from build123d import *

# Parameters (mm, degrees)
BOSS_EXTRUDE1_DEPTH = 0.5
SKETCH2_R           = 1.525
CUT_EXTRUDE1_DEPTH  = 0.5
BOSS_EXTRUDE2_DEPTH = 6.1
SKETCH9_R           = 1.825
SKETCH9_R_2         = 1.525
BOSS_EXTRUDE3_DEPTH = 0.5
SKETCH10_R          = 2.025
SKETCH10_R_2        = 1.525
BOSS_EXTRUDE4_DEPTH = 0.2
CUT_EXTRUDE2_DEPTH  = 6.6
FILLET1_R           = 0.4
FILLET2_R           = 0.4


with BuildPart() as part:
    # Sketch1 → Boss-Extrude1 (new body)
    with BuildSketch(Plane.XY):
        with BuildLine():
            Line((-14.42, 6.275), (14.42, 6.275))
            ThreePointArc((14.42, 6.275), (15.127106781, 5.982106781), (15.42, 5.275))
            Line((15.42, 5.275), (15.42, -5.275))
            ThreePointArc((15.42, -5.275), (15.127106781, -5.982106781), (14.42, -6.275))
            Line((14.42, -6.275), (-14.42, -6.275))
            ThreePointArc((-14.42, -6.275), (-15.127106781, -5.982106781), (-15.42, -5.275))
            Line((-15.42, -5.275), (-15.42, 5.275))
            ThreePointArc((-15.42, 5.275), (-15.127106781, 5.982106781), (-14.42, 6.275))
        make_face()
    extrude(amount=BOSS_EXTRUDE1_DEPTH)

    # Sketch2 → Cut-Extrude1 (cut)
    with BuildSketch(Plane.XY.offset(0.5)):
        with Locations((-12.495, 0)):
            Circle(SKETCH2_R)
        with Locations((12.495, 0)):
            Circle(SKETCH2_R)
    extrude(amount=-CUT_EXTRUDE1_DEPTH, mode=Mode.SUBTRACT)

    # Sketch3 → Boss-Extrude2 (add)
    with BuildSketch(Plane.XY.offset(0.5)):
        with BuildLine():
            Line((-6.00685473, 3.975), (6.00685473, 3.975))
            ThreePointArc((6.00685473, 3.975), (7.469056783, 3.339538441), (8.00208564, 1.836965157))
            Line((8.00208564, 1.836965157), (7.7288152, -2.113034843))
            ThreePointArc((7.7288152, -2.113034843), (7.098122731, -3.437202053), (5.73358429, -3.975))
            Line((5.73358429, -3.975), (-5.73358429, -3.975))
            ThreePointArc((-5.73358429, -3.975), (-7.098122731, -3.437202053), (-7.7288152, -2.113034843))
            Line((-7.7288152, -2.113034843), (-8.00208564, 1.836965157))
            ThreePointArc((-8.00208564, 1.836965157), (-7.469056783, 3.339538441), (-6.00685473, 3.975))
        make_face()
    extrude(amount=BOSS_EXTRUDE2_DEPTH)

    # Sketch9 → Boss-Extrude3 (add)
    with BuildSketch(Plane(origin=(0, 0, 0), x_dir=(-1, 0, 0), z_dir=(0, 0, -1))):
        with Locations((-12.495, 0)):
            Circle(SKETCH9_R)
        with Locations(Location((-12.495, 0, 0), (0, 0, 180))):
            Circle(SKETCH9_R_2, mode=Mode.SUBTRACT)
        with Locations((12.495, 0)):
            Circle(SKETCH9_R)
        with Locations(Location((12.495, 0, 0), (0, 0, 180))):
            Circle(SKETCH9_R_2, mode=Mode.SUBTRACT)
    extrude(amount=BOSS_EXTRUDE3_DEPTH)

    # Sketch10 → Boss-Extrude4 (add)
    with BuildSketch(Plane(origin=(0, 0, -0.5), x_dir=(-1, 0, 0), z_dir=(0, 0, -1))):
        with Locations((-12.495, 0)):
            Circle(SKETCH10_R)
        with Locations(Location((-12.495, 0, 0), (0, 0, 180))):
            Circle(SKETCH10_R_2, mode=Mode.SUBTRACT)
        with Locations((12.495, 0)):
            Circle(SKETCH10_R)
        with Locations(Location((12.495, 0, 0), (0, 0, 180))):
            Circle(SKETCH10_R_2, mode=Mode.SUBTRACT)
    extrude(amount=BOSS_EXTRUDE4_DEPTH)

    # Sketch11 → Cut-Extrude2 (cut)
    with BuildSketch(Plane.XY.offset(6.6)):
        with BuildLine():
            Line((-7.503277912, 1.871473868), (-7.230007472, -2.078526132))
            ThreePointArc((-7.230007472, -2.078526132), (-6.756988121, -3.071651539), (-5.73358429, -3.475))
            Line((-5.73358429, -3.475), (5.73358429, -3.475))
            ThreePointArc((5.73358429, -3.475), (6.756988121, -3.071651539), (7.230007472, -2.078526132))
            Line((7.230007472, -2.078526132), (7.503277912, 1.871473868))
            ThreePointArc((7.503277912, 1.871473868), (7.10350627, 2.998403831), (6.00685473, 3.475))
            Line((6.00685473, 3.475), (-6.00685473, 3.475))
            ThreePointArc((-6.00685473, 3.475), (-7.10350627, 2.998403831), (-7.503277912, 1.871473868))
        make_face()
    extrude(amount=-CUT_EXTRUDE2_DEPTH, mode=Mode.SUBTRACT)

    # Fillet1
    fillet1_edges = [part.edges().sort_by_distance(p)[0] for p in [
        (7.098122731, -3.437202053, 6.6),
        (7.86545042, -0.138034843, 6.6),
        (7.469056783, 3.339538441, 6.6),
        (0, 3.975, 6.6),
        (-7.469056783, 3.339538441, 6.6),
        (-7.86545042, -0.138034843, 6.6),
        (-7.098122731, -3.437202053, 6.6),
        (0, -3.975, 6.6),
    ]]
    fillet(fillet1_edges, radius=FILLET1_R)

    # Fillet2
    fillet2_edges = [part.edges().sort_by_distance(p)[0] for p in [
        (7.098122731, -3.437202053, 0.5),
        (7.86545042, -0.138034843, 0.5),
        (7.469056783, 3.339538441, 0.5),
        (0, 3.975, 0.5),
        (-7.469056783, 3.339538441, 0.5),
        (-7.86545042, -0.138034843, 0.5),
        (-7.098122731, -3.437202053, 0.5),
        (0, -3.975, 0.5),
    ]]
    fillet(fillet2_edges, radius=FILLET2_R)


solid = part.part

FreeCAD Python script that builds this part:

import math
import FreeCAD as App
import Part
import Sketcher

V = App.Vector


def edges_at(feature, points):
    """Names of the edges that pass closest to the given points."""
    edges = feature.Shape.Edges
    near = lambda p: min(range(len(edges)), key=lambda i: edges[i].distToShape(Part.Vertex(*p))[0])
    return sorted({f"Edge{near(p) + 1}" for p in points})

doc = App.newDocument("Part")
params = doc.addObject("Spreadsheet::Sheet", "Params")
for row, (alias, value) in enumerate([
    ("sketch1_radius", "1 mm"),
    ("sketch1_width", "28.84 mm"),
    ("sketch1_height", "10.55 mm"),
    ("pad1_length", "0.5 mm"),
    ("sketch2_diameter", "3.05 mm"),
    ("pocket1_length", "0.5 mm"),
    ("sketch3_radius", "2 mm"),
    ("pad2_length", "6.1 mm"),
    ("sketch4_diameter", "3.65 mm"),
    ("sketch4_diameter2", "3.05 mm"),
    ("pad3_length", "0.5 mm"),
    ("sketch5_diameter", "4.05 mm"),
    ("sketch5_diameter2", "3.05 mm"),
    ("pad4_length", "0.2 mm"),
    ("sketch6_radius", "1.5 mm"),
    ("pocket2_length", "6.6 mm"),
    ("fillet_radius", "0.4 mm"),
    ("fillet2_radius", "0.4 mm"),
], start=1):
    params.set(f"A{row}", alias)
    params.set(f"B{row}", "=" + value)
    params.setAlias(f"B{row}", alias)

body = doc.addObject("PartDesign::Body", "Body")

sketch1 = body.newObject("Sketcher::SketchObject", "Sketch")
sketch1.AttachmentSupport = (doc.getObject("XY_Plane"), [""])
sketch1.MapMode = "FlatFace"
sketch1.addGeometry([
    Part.LineSegment(V(14.4, 6.3, 0), V(-14.4, 6.3, 0)),
    Part.ArcOfCircle(Part.Circle(V(-14.4, 5.3, 0), V(0, 0, 1), 1), math.radians(90), math.radians(180)),
    Part.LineSegment(V(-15.4, 5.3, 0), V(-15.4, -5.3, 0)),
    Part.ArcOfCircle(Part.Circle(V(-14.4, -5.3, 0), V(0, 0, 1), 1), math.radians(-180), math.radians(-90)),
    Part.LineSegment(V(-14.4, -6.3, 0), V(14.4, -6.3, 0)),
    Part.ArcOfCircle(Part.Circle(V(14.4, -5.3, 0), V(0, 0, 1), 1), math.radians(-90), math.radians(0)),
    Part.LineSegment(V(15.4, -5.3, 0), V(15.4, 5.3, 0)),
    Part.ArcOfCircle(Part.Circle(V(14.4, 5.3, 0), V(0, 0, 1), 1), math.radians(0), math.radians(90)),
], False)
sketch1.addConstraint([
    Sketcher.Constraint("Tangent", 0, 2, 1, 1),
    Sketcher.Constraint("Tangent", 1, 2, 2, 1),
    Sketcher.Constraint("Tangent", 2, 2, 3, 1),
    Sketcher.Constraint("Tangent", 3, 2, 4, 1),
    Sketcher.Constraint("Tangent", 4, 2, 5, 1),
    Sketcher.Constraint("Tangent", 5, 2, 6, 1),
    Sketcher.Constraint("Tangent", 6, 2, 7, 1),
    Sketcher.Constraint("Tangent", 7, 2, 0, 1),
    Sketcher.Constraint("Horizontal", 0),
    Sketcher.Constraint("Vertical", 2),
    Sketcher.Constraint("Horizontal", 4),
    Sketcher.Constraint("Vertical", 6),
    Sketcher.Constraint("Equal", 1, 3),
    Sketcher.Constraint("Equal", 3, 5),
    Sketcher.Constraint("Equal", 5, 7),
    Sketcher.Constraint("Symmetric", 1, 3, 5, 3, -1, 1),
    Sketcher.Constraint("Radius", 1, 1.0),
    Sketcher.Constraint("DistanceX", 0, 2, 0, 1, 28.84),
    Sketcher.Constraint("DistanceY", 2, 2, 2, 1, 10.55),
])
sketch1.setExpression("Constraints[16]", "Params.sketch1_radius")
sketch1.setExpression("Constraints[17]", "Params.sketch1_width")
sketch1.setExpression("Constraints[18]", "Params.sketch1_height")
pad1 = body.newObject("PartDesign::Pad", "Pad")
pad1.Profile = sketch1
pad1.setExpression("Length", "Params.pad1_length")

sketch2 = body.newObject("Sketcher::SketchObject", "Sketch001")
sketch2.AttachmentSupport = (doc.getObject("XY_Plane"), [""])
sketch2.MapMode = "FlatFace"
sketch2.AttachmentOffset = App.Placement(V(0, 0, 0.5), App.Rotation())
sketch2.addGeometry([
    Part.Circle(V(-12.5, 0, 0), V(0, 0, 1), 1.5),
    Part.Circle(V(12.5, 0, 0), V(0, 0, 1), 1.5),
], False)
sketch2.addConstraint([
    Sketcher.Constraint("Equal", 0, 1),
    Sketcher.Constraint("Symmetric", 0, 3, 1, 3, -1, 1),
    Sketcher.Constraint("PointOnObject", 0, 3, -1),
    Sketcher.Constraint("Diameter", 0, 3.05),
    Sketcher.Constraint("DistanceX", 0, 3, 1, 3, 24.99),
])
sketch2.setExpression("Constraints[3]", "Params.sketch2_diameter")
pocket1 = body.newObject("PartDesign::Pocket", "Pocket")
pocket1.Profile = sketch2
pocket1.setExpression("Length", "Params.pocket1_length")

sketch3 = body.newObject("Sketcher::SketchObject", "Sketch002")
sketch3.AttachmentSupport = (doc.getObject("XY_Plane"), [""])
sketch3.MapMode = "FlatFace"
sketch3.AttachmentOffset = App.Placement(V(0, 0, 0.5), App.Rotation())
sketch3.addGeometry([
    Part.LineSegment(V(6, 4, 0), V(-6, 4, 0)),
    Part.ArcOfCircle(Part.Circle(V(-6, 2, 0), V(0, 0, 1), 2), math.radians(90), math.radians(184)),
    Part.LineSegment(V(-8, 1.8, 0), V(-7.7, -2.1, 0)),
    Part.ArcOfCircle(Part.Circle(V(-5.7, -2, 0), V(0, 0, 1), 2), math.radians(-176), math.radians(-90)),
    Part.LineSegment(V(-5.7, -4, 0), V(5.7, -4, 0)),
    Part.ArcOfCircle(Part.Circle(V(5.7, -2, 0), V(0, 0, 1), 2), math.radians(-90), math.radians(-4)),
    Part.LineSegment(V(7.7, -2.1, 0), V(8, 1.8, 0)),
    Part.ArcOfCircle(Part.Circle(V(6, 2, 0), V(0, 0, 1), 2), math.radians(-4), math.radians(90)),
], False)
sketch3.addConstraint([
    Sketcher.Constraint("Tangent", 0, 2, 1, 1),
    Sketcher.Constraint("Tangent", 1, 2, 2, 1),
    Sketcher.Constraint("Tangent", 2, 2, 3, 1),
    Sketcher.Constraint("Tangent", 3, 2, 4, 1),
    Sketcher.Constraint("Tangent", 4, 2, 5, 1),
    Sketcher.Constraint("Tangent", 5, 2, 6, 1),
    Sketcher.Constraint("Tangent", 6, 2, 7, 1),
    Sketcher.Constraint("Tangent", 7, 2, 0, 1),
    Sketcher.Constraint("Horizontal", 0),
    Sketcher.Constraint("Horizontal", 4),
    Sketcher.Constraint("Equal", 1, 3),
    Sketcher.Constraint("Equal", 3, 5),
    Sketcher.Constraint("Equal", 5, 7),
    Sketcher.Constraint("Symmetric", 2, 2, 5, 2, -2),
    Sketcher.Constraint("Radius", 1, 2.0),
    Sketcher.Constraint("DistanceY", 3, 3, 1, 3, 3.95),
    Sketcher.Constraint("DistanceY", -1, 1, 1, 3, 1.975),
    Sketcher.Constraint("DistanceX", 0, 2, 0, 1, 12.013709),
    Sketcher.Constraint("DistanceX", 4, 1, 4, 2, 11.467169),
])
sketch3.setExpression("Constraints[14]", "Params.sketch3_radius")
pad2 = body.newObject("PartDesign::Pad", "Pad001")
pad2.Profile = sketch3
pad2.setExpression("Length", "Params.pad2_length")

sketch4 = body.newObject("Sketcher::SketchObject", "Sketch003")
sketch4.AttachmentSupport = (doc.getObject("XY_Plane"), [""])
sketch4.MapMode = "FlatFace"
sketch4.addGeometry([
    Part.Circle(V(12.5, 0, 0), V(0, 0, 1), 1.8),
    Part.Circle(V(12.5, 0, 0), V(0, 0, 1), 1.5),
    Part.Circle(V(-12.5, 0, 0), V(0, 0, 1), 1.8),
    Part.Circle(V(-12.5, 0, 0), V(0, 0, 1), 1.5),
], False)
sketch4.addConstraint([
    Sketcher.Constraint("Coincident", 1, 3, 0, 3),
    Sketcher.Constraint("Coincident", 3, 3, 2, 3),
    Sketcher.Constraint("Equal", 0, 2),
    Sketcher.Constraint("Equal", 1, 3),
    Sketcher.Constraint("Symmetric", 0, 3, 2, 3, -1, 1),
    Sketcher.Constraint("PointOnObject", 0, 3, -1),
    Sketcher.Constraint("Diameter", 0, 3.65),
    Sketcher.Constraint("Diameter", 1, 3.05),
    Sketcher.Constraint("DistanceX", 2, 3, 0, 3, 24.99),
])
sketch4.setExpression("Constraints[6]", "Params.sketch4_diameter")
sketch4.setExpression("Constraints[7]", "Params.sketch4_diameter2")
pad3 = body.newObject("PartDesign::Pad", "Pad002")
pad3.Profile = sketch4
pad3.setExpression("Length", "Params.pad3_length")
pad3.Reversed = True

sketch5 = body.newObject("Sketcher::SketchObject", "Sketch004")
sketch5.AttachmentSupport = (doc.getObject("XY_Plane"), [""])
sketch5.MapMode = "FlatFace"
sketch5.AttachmentOffset = App.Placement(V(0, 0, -0.5), App.Rotation())
sketch5.addGeometry([
    Part.Circle(V(12.5, 0, 0), V(0, 0, 1), 2),
    Part.Circle(V(12.5, 0, 0), V(0, 0, 1), 1.5),
    Part.Circle(V(-12.5, 0, 0), V(0, 0, 1), 2),
    Part.Circle(V(-12.5, 0, 0), V(0, 0, 1), 1.5),
], False)
sketch5.addConstraint([
    Sketcher.Constraint("Coincident", 1, 3, 0, 3),
    Sketcher.Constraint("Coincident", 3, 3, 2, 3),
    Sketcher.Constraint("Equal", 0, 2),
    Sketcher.Constraint("Equal", 1, 3),
    Sketcher.Constraint("Symmetric", 0, 3, 2, 3, -1, 1),
    Sketcher.Constraint("PointOnObject", 0, 3, -1),
    Sketcher.Constraint("Diameter", 0, 4.05),
    Sketcher.Constraint("Diameter", 1, 3.05),
    Sketcher.Constraint("DistanceX", 2, 3, 0, 3, 24.99),
])
sketch5.setExpression("Constraints[6]", "Params.sketch5_diameter")
sketch5.setExpression("Constraints[7]", "Params.sketch5_diameter2")
pad4 = body.newObject("PartDesign::Pad", "Pad003")
pad4.Profile = sketch5
pad4.setExpression("Length", "Params.pad4_length")
pad4.Reversed = True

sketch6 = body.newObject("Sketcher::SketchObject", "Sketch005")
sketch6.AttachmentSupport = (doc.getObject("XY_Plane"), [""])
sketch6.MapMode = "FlatFace"
sketch6.AttachmentOffset = App.Placement(V(0, 0, 6.6), App.Rotation())
sketch6.addGeometry([
    Part.LineSegment(V(-7.5, 1.9, 0), V(-7.2, -2.1, 0)),
    Part.ArcOfCircle(Part.Circle(V(-5.7, -2, 0), V(0, 0, 1), 1.5), math.radians(-176), math.radians(-90)),
    Part.LineSegment(V(-5.7, -3.5, 0), V(5.7, -3.5, 0)),
    Part.ArcOfCircle(Part.Circle(V(5.7, -2, 0), V(0, 0, 1), 1.5), math.radians(-90), math.radians(-4)),
    Part.LineSegment(V(7.2, -2.1, 0), V(7.5, 1.9, 0)),
    Part.ArcOfCircle(Part.Circle(V(6, 2, 0), V(0, 0, 1), 1.5), math.radians(-4), math.radians(90)),
    Part.LineSegment(V(6, 3.5, 0), V(-6, 3.5, 0)),
    Part.ArcOfCircle(Part.Circle(V(-6, 2, 0), V(0, 0, 1), 1.5), math.radians(90), math.radians(184)),
], False)
sketch6.addConstraint([
    Sketcher.Constraint("Tangent", 0, 2, 1, 1),
    Sketcher.Constraint("Tangent", 1, 2, 2, 1),
    Sketcher.Constraint("Tangent", 2, 2, 3, 1),
    Sketcher.Constraint("Tangent", 3, 2, 4, 1),
    Sketcher.Constraint("Tangent", 4, 2, 5, 1),
    Sketcher.Constraint("Tangent", 5, 2, 6, 1),
    Sketcher.Constraint("Tangent", 6, 2, 7, 1),
    Sketcher.Constraint("Tangent", 7, 2, 0, 1),
    Sketcher.Constraint("Horizontal", 2),
    Sketcher.Constraint("Horizontal", 6),
    Sketcher.Constraint("Equal", 1, 3),
    Sketcher.Constraint("Equal", 3, 5),
    Sketcher.Constraint("Equal", 5, 7),
    Sketcher.Constraint("Symmetric", 0, 2, 3, 2, -2),
    Sketcher.Constraint("Radius", 1, 1.5),
    Sketcher.Constraint("DistanceY", 3, 3, 5, 3, 3.95),
    Sketcher.Constraint("DistanceY", 1, 3, -1, 1, 1.975),
    Sketcher.Constraint("DistanceX", 2, 1, 2, 2, 11.467169),
    Sketcher.Constraint("DistanceX", 6, 2, 6, 1, 12.013709),
])
sketch6.setExpression("Constraints[14]", "Params.sketch6_radius")
pocket2 = body.newObject("PartDesign::Pocket", "Pocket001")
pocket2.Profile = sketch6
pocket2.setExpression("Length", "Params.pocket2_length")
doc.recompute()

fillet = body.newObject("PartDesign::Fillet", "Fillet")
fillet.Base = (pocket2, edges_at(pocket2, [
    (7.098, -3.437, 6.6),
    (7.865, -0.138, 6.6),
    (7.469, 3.34, 6.6),
    (0, 3.975, 6.6),
    (-7.469, 3.34, 6.6),
    (-7.865, -0.138, 6.6),
    (-7.098, -3.437, 6.6),
    (0, -3.975, 6.6),
]))
fillet.setExpression("Radius", "Params.fillet_radius")
doc.recompute()

fillet2 = body.newObject("PartDesign::Fillet", "Fillet001")
fillet2.Base = (fillet, edges_at(fillet, [
    (7.098, -3.437, 0.5),
    (7.865, -0.138, 0.5),
    (7.469, 3.34, 0.5),
    (0, 3.975, 0.5),
    (-7.469, 3.34, 0.5),
    (-7.865, -0.138, 0.5),
    (-7.098, -3.437, 0.5),
    (0, -3.975, 0.5),
]))
fillet2.setExpression("Radius", "Params.fillet2_radius")

doc.recompute()
